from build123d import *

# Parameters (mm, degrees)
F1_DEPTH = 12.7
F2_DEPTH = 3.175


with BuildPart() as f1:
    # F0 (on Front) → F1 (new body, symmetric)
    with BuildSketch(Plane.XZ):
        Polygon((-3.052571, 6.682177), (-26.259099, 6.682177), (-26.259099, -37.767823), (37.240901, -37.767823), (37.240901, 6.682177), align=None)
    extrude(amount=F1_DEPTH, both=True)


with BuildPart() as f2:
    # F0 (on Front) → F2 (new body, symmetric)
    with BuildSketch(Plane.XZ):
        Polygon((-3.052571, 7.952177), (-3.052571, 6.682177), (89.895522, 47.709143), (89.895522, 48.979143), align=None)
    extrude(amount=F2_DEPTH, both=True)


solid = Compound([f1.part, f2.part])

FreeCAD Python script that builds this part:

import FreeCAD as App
import Part
import Sketcher
Q = App.Units.Quantity


def add_polygon(sketch, points):
    """Adds a closed chain of lines whose ends are joined by coincident constraints."""
    first, n = sketch.GeometryCount, len(points)
    for a, b in zip(points, points[1:] + points[:1]):
        sketch.addGeometry(Part.LineSegment(App.Vector(*a, 0), App.Vector(*b, 0)), False)
    for i in range(n):
        sketch.addConstraint(Sketcher.Constraint("Coincident", first + i, 2, first + (i + 1) % n, 1))

doc = App.newDocument("Part")
body = doc.addObject("PartDesign::Body", "Body")

# Sketch on XZ plane
sketch1 = doc.addObject("Sketcher::SketchObject", "Sketch")
body.addObject(sketch1)
sketch1.AttachmentSupport = (doc.XZ_Plane, [""])
sketch1.MapMode = "FlatFace"
add_polygon(sketch1, [(-26, 7), (-26, -38), (37, -38), (37, 7)])  # lines 0-3
sketch1.addConstraint([
    Sketcher.Constraint("Vertical", 0),
    Sketcher.Constraint("Horizontal", 1),
    Sketcher.Constraint("Vertical", 2),
    Sketcher.Constraint("Horizontal", 3),
    Sketcher.Constraint("DistanceX", 1, 1, 1, 2, Q("2.5 in")),
    Sketcher.Constraint("DistanceY", 0, 2, 0, 1, Q("1.75 in")),
    Sketcher.Constraint("DistanceX", 0, 2, -1, 1, Q("26.259099 mm")),
    Sketcher.Constraint("DistanceY", 0, 2, -1, 1, Q("37.767823 mm")),
])
pad1 = doc.addObject("PartDesign::Pad", "Pad")
body.addObject(pad1)
pad1.Profile = sketch1
pad1.Length = Q("1 in")
pad1.Midplane = True
body2 = doc.addObject("PartDesign::Body", "Body001")

# Sketch on XZ plane
sketch2 = doc.addObject("Sketcher::SketchObject", "Sketch001")
body2.addObject(sketch2)
sketch2.AttachmentSupport = (doc.getObject("XZ_Plane001"), [""])
sketch2.MapMode = "FlatFace"
add_polygon(sketch2, [(-3.1, 8), (-3.1, 6.7), (89.9, 47.7), (89.9, 49)])  # lines 0-3
sketch2.addConstraint([
    Sketcher.Constraint("Vertical", 0),
    Sketcher.Constraint("Vertical", 2),
    Sketcher.Constraint("Parallel", 1, 3),
    Sketcher.Constraint("Distance", 1, Q("4 in")),
    Sketcher.Constraint("DistanceY", 0, 2, 0, 1, Q("0.05 in")),
    Sketcher.Constraint("DistanceX", 0, 2, -1, 1, Q("3.052571 mm")),
    Sketcher.Constraint("DistanceX", -1, 1, 1, 2, Q("89.895522 mm")),
    Sketcher.Constraint("DistanceY", -1, 1, 0, 2, Q("6.682177 mm")),
])
pad2 = doc.addObject("PartDesign::Pad", "Pad001")
body2.addObject(pad2)
pad2.Profile = sketch2
pad2.Length = Q("0.25 in")
pad2.Midplane = True

doc.recompute()
